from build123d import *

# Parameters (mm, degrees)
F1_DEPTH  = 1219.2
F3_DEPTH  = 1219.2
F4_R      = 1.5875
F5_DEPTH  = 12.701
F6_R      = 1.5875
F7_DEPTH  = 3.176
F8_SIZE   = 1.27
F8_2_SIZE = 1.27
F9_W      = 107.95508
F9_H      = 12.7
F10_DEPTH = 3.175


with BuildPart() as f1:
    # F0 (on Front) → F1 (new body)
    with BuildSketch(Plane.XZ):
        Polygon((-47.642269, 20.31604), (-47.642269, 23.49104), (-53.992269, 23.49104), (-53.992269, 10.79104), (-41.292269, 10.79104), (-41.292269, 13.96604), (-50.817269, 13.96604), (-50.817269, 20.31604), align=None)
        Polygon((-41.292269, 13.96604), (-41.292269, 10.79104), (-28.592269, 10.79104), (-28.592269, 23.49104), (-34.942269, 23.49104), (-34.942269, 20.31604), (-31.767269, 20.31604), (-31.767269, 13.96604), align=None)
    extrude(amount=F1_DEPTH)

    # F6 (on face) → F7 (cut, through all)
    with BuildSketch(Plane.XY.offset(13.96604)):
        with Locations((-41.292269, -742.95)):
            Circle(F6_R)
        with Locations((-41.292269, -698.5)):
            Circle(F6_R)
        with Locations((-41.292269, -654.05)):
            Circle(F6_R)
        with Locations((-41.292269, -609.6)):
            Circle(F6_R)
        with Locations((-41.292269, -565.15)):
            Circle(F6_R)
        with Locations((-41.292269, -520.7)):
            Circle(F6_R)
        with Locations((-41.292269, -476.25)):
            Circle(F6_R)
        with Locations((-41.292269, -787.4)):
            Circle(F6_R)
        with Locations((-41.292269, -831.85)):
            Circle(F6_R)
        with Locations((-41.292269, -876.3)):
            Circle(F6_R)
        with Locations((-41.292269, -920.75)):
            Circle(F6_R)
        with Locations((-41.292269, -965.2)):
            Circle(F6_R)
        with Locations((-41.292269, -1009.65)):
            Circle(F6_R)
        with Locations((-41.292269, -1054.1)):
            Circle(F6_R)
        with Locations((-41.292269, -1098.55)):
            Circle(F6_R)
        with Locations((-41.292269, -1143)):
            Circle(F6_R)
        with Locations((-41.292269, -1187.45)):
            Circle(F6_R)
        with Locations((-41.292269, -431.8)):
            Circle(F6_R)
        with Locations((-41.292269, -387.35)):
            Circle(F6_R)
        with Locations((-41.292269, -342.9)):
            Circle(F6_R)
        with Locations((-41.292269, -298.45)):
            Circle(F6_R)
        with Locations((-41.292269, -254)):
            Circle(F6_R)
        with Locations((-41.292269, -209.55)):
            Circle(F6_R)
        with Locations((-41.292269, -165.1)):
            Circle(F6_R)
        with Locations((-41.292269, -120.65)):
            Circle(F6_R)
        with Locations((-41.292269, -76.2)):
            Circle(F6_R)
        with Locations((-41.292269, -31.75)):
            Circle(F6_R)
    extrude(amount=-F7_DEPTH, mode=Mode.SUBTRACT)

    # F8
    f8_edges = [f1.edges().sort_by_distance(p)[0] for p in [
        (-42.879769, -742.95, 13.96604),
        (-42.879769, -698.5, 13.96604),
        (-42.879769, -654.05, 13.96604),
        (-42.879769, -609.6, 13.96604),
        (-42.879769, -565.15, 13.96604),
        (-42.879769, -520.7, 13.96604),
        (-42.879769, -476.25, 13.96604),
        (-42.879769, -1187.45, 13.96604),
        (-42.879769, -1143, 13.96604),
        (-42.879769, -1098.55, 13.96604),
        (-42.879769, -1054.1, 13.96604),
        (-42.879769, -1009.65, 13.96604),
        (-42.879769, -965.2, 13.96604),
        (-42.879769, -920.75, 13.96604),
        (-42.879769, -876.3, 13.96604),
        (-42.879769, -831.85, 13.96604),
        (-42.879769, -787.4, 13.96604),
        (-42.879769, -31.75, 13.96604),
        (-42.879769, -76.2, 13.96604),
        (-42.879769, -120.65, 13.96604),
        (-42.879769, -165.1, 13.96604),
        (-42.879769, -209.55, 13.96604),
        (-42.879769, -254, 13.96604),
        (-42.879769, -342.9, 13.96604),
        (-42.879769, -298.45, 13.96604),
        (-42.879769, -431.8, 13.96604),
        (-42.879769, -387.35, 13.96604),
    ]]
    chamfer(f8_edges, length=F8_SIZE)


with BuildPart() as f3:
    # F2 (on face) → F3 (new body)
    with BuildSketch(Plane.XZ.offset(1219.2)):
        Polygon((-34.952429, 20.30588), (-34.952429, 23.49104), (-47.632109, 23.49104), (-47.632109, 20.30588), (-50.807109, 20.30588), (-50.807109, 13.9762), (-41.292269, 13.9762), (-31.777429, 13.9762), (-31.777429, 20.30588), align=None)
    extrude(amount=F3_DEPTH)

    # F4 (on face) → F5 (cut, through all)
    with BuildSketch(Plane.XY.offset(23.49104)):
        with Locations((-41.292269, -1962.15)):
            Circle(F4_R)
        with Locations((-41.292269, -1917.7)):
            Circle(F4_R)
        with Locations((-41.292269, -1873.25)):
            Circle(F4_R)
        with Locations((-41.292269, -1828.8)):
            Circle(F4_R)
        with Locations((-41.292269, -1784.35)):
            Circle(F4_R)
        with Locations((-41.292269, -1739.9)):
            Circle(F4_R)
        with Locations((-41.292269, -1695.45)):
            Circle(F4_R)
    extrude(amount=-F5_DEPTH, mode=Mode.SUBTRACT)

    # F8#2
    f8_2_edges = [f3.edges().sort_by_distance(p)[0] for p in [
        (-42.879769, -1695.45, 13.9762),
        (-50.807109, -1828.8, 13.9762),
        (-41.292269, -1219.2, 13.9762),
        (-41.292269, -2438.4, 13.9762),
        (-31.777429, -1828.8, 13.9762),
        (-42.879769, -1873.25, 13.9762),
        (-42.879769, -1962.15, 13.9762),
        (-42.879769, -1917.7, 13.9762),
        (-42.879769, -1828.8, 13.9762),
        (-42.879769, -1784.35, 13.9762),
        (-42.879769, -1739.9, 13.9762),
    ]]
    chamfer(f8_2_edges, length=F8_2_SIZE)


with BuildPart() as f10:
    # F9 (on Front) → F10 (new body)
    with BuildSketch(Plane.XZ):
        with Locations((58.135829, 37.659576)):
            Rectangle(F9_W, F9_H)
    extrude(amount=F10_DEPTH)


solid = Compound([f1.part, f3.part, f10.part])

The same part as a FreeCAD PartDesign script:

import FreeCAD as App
import Part
import Sketcher

V = App.Vector
Q = App.Units.Quantity


def edges_at(feature, points):
    """Names of the edges that pass closest to the given points."""
    edges = feature.Shape.Edges
    near = lambda p: min(range(len(edges)), key=lambda i: edges[i].distToShape(Part.Vertex(*p))[0])
    return sorted({f"Edge{near(p) + 1}" for p in points})

doc = App.newDocument("Part")
body = doc.addObject("PartDesign::Body", "Body")

# Sketch on XZ plane
sketch1 = body.newObject("Sketcher::SketchObject", "Sketch")
sketch1.AttachmentSupport = (doc.getObject("XZ_Plane"), [""])
sketch1.MapMode = "FlatFace"
sketch1.addGeometry([
    Part.LineSegment(V(-47.6, 20.3, 0), V(-47.6, 23.5, 0)),  # 0
    Part.LineSegment(V(-47.6, 23.5, 0), V(-54, 23.5, 0)),  # 1
    Part.LineSegment(V(-54, 23.5, 0), V(-54, 10.8, 0)),  # 2
    Part.LineSegment(V(-54, 10.8, 0), V(-28.6, 10.8, 0)),  # 3
    Part.LineSegment(V(-28.6, 10.8, 0), V(-28.6, 23.5, 0)),  # 4
    Part.LineSegment(V(-28.6, 23.5, 0), V(-34.9, 23.5, 0)),  # 5
    Part.LineSegment(V(-34.9, 23.5, 0), V(-34.9, 20.3, 0)),  # 6
    Part.LineSegment(V(-34.9, 20.3, 0), V(-31.8, 20.3, 0)),  # 7
    Part.LineSegment(V(-31.8, 20.3, 0), V(-31.8, 14, 0)),  # 8
    Part.LineSegment(V(-31.8, 14, 0), V(-50.8, 14, 0)),  # 9
    Part.LineSegment(V(-50.8, 14, 0), V(-50.8, 20.3, 0)),  # 10
    Part.LineSegment(V(-50.8, 20.3, 0), V(-47.6, 20.3, 0)),  # 11
], False)
sketch1.addConstraint([
    Sketcher.Constraint("Coincident", 0, 2, 1, 1),
    Sketcher.Constraint("Coincident", 1, 2, 2, 1),
    Sketcher.Constraint("Coincident", 2, 2, 3, 1),
    Sketcher.Constraint("Coincident", 3, 2, 4, 1),
    Sketcher.Constraint("Coincident", 4, 2, 5, 1),
    Sketcher.Constraint("Coincident", 5, 2, 6, 1),
    Sketcher.Constraint("Coincident", 6, 2, 7, 1),
    Sketcher.Constraint("Coincident", 7, 2, 8, 1),
    Sketcher.Constraint("Coincident", 8, 2, 9, 1),
    Sketcher.Constraint("Coincident", 9, 2, 10, 1),
    Sketcher.Constraint("Coincident", 10, 2, 11, 1),
    Sketcher.Constraint("Coincident", 11, 2, 0, 1),
    Sketcher.Constraint("Vertical", 0),
    Sketcher.Constraint("Horizontal", 1),
    Sketcher.Constraint("Vertical", 2),
    Sketcher.Constraint("Horizontal", 3),
    Sketcher.Constraint("Vertical", 4),
    Sketcher.Constraint("Horizontal", 5),
    Sketcher.Constraint("Vertical", 6),
    Sketcher.Constraint("Horizontal", 7),
    Sketcher.Constraint("Vertical", 8),
    Sketcher.Constraint("Horizontal", 9),
    Sketcher.Constraint("Vertical", 10),
    Sketcher.Constraint("Horizontal", 11),
    Sketcher.Constraint("Horizontal", 1, 2, 4, 2),
    Sketcher.Constraint("Horizontal", 7, 2, 10, 2),
    Sketcher.Constraint("Equal", 1, 5),
    Sketcher.Constraint("Equal", 7, 11),
    Sketcher.Constraint("Equal", 11, 0),
    Sketcher.Constraint("Equal", 5, 8),
    Sketcher.Constraint("DistanceX", 3, 1, 3, 2, Q("1 in")),
    Sketcher.Constraint("DistanceY", 2, 2, 2, 1, Q("0.5 in")),
    Sketcher.Constraint("DistanceX", 1, 2, 1, 1, Q("0.25 in")),
    Sketcher.Constraint("DistanceX", 9, 2, 9, 1, Q("0.75 in")),
    Sketcher.Constraint("DistanceX", 0, 2, -1, 1, 47.642269),
    Sketcher.Constraint("DistanceY", -1, 1, 0, 2, 23.49104),
])
pad1 = body.newObject("PartDesign::Pad", "Pad")
pad1.Profile = sketch1
pad1.Length = Q("48 in")

# Sketch on XY plane
sketch2 = body.newObject("Sketcher::SketchObject", "Sketch001")
sketch2.AttachmentSupport = (doc.getObject("XY_Plane"), [""])
sketch2.MapMode = "FlatFace"
sketch2.AttachmentOffset = App.Placement(V(0, 0, 13.96604), App.Rotation())
sketch2.addGeometry([
    Part.Circle(V(-41.3, -743, 0), V(0, 0, 1), 1.6),  # 0
    Part.Circle(V(-41.3, -698.5, 0), V(0, 0, 1), 1.6),  # 1
    Part.Circle(V(-41.3, -654, 0), V(0, 0, 1), 1.6),  # 2
    Part.Circle(V(-41.3, -609.6, 0), V(0, 0, 1), 1.6),  # 3
    Part.Circle(V(-41.3, -565.1, 0), V(0, 0, 1), 1.6),  # 4
    Part.Circle(V(-41.3, -520.7, 0), V(0, 0, 1), 1.6),  # 5
    Part.Circle(V(-41.3, -476.2, 0), V(0, 0, 1), 1.6),  # 6
    Part.Circle(V(-41.3, -787.4, 0), V(0, 0, 1), 1.6),  # 7
    Part.Circle(V(-41.3, -831.9, 0), V(0, 0, 1), 1.6),  # 8
    Part.Circle(V(-41.3, -876.3, 0), V(0, 0, 1), 1.6),  # 9
    Part.Circle(V(-41.3, -920.8, 0), V(0, 0, 1), 1.6),  # 10
    Part.Circle(V(-41.3, -965.2, 0), V(0, 0, 1), 1.6),  # 11
    Part.Circle(V(-41.3, -1009.6, 0), V(0, 0, 1), 1.6),  # 12
    Part.Circle(V(-41.3, -1054.1, 0), V(0, 0, 1), 1.6),  # 13
    Part.Circle(V(-41.3, -1098.5, 0), V(0, 0, 1), 1.6),  # 14
    Part.Circle(V(-41.3, -1143, 0), V(0, 0, 1), 1.6),  # 15
    Part.Circle(V(-41.3, -1187.5, 0), V(0, 0, 1), 1.6),  # 16
    Part.Circle(V(-41.3, -431.8, 0), V(0, 0, 1), 1.6),  # 17
    Part.Circle(V(-41.3, -387.4, 0), V(0, 0, 1), 1.6),  # 18
    Part.Circle(V(-41.3, -342.9, 0), V(0, 0, 1), 1.6),  # 19
    Part.Circle(V(-41.3, -298.4, 0), V(0, 0, 1), 1.6),  # 20
    Part.Circle(V(-41.3, -254, 0), V(0, 0, 1), 1.6),  # 21
    Part.Circle(V(-41.3, -209.6, 0), V(0, 0, 1), 1.6),  # 22
    Part.Circle(V(-41.3, -165.1, 0), V(0, 0, 1), 1.6),  # 23
    Part.Circle(V(-41.3, -120.7, 0), V(0, 0, 1), 1.6),  # 24
    Part.Circle(V(-41.3, -76.2, 0), V(0, 0, 1), 1.6),  # 25
    Part.Circle(V(-41.3, -31.8, 0), V(0, 0, 1), 1.6),  # 26
], False)
sketch2.addConstraint([
    Sketcher.Constraint("Equal", 0, 1),
    Sketcher.Constraint("Equal", 1, 2),
    Sketcher.Constraint("Equal", 2, 3),
    Sketcher.Constraint("Equal", 3, 4),
    Sketcher.Constraint("Equal", 4, 5),
    Sketcher.Constraint("Equal", 5, 6),
    Sketcher.Constraint("Equal", 6, 7),
    Sketcher.Constraint("Equal", 7, 8),
    Sketcher.Constraint("Equal", 8, 9),
    Sketcher.Constraint("Equal", 9, 10),
    Sketcher.Constraint("Equal", 10, 11),
    Sketcher.Constraint("Equal", 11, 12),
    Sketcher.Constraint("Equal", 12, 13),
    Sketcher.Constraint("Equal", 13, 14),
    Sketcher.Constraint("Equal", 14, 15),
    Sketcher.Constraint("Equal", 15, 16),
    Sketcher.Constraint("Equal", 16, 17),
    Sketcher.Constraint("Equal", 17, 18),
    Sketcher.Constraint("Equal", 18, 19),
    Sketcher.Constraint("Equal", 19, 20),
    Sketcher.Constraint("Equal", 20, 21),
    Sketcher.Constraint("Equal", 21, 22),
    Sketcher.Constraint("Equal", 22, 23),
    Sketcher.Constraint("Equal", 23, 24),
    Sketcher.Constraint("Equal", 24, 25),
    Sketcher.Constraint("Equal", 25, 26),
    Sketcher.Constraint("Vertical", 0, 3, 1, 3),
    Sketcher.Constraint("Vertical", 1, 3, 2, 3),
    Sketcher.Constraint("Vertical", 2, 3, 3, 3),
    Sketcher.Constraint("Vertical", 3, 3, 4, 3),
    Sketcher.Constraint("Vertical", 4, 3, 5, 3),
    Sketcher.Constraint("Vertical", 5, 3, 6, 3),
    Sketcher.Constraint("Vertical", 6, 3, 7, 3),
    Sketcher.Constraint("Vertical", 7, 3, 8, 3),
    Sketcher.Constraint("Vertical", 8, 3, 9, 3),
    Sketcher.Constraint("Vertical", 9, 3, 10, 3),
    Sketcher.Constraint("Vertical", 10, 3, 11, 3),
    Sketcher.Constraint("Vertical", 11, 3, 12, 3),
    Sketcher.Constraint("Vertical", 12, 3, 13, 3),
    Sketcher.Constraint("Vertical", 13, 3, 14, 3),
    Sketcher.Constraint("Vertical", 14, 3, 15, 3),
    Sketcher.Constraint("Vertical", 15, 3, 16, 3),
    Sketcher.Constraint("Vertical", 16, 3, 17, 3),
    Sketcher.Constraint("Vertical", 17, 3, 18, 3),
    Sketcher.Constraint("Vertical", 18, 3, 19, 3),
    Sketcher.Constraint("Vertical", 19, 3, 20, 3),
    Sketcher.Constraint("Vertical", 20, 3, 21, 3),
    Sketcher.Constraint("Vertical", 21, 3, 22, 3),
    Sketcher.Constraint("Vertical", 22, 3, 23, 3),
    Sketcher.Constraint("Vertical", 23, 3, 24, 3),
    Sketcher.Constraint("Vertical", 24, 3, 25, 3),
    Sketcher.Constraint("Vertical", 25, 3, 26, 3),
    Sketcher.Constraint("Diameter", 0, Q("0.125 in")),
    Sketcher.Constraint("DistanceY", 3, 3, -1, 1, Q("24 in")),
    Sketcher.Constraint("DistanceY", 7, 3, -1, 1, Q("31 in")),
    Sketcher.Constraint("DistanceY", 11, 3, -1, 1, Q("38 in")),
    Sketcher.Constraint("DistanceY", 15, 3, -1, 1, Q("45 in")),
    Sketcher.Constraint("DistanceY", 17, 3, -1, 1, Q("17 in")),
    Sketcher.Constraint("DistanceY", 21, 3, -1, 1, Q("10 in")),
    Sketcher.Constraint("DistanceY", 25, 3, -1, 1, Q("3 in")),
    Sketcher.Constraint("DistanceY", 0, 3, 4, 3, Q("7 in")),
    Sketcher.Constraint("DistanceY", 1, 3, 5, 3, Q("7 in")),
    Sketcher.Constraint("DistanceY", 2, 3, 6, 3, Q("7 in")),
    Sketcher.Constraint("DistanceY", 8, 3, 2, 3, Q("7 in")),
    Sketcher.Constraint("DistanceY", 9, 3, 1, 3, Q("7 in")),
    Sketcher.Constraint("DistanceY", 10, 3, 0, 3, Q("7 in")),
    Sketcher.Constraint("DistanceY", 12, 3, 8, 3, Q("7 in")),
    Sketcher.Constraint("DistanceY", 13, 3, 9, 3, Q("7 in")),
    Sketcher.Constraint("DistanceY", 14, 3, 10, 3, Q("7 in")),
    Sketcher.Constraint("DistanceY", 16, 3, 12, 3, Q("7 in")),
    Sketcher.Constraint("DistanceY", 4, 3, 18, 3, Q("7 in")),
    Sketcher.Constraint("DistanceY", 5, 3, 19, 3, Q("7 in")),
    Sketcher.Constraint("DistanceY", 6, 3, 20, 3, Q("7 in")),
    Sketcher.Constraint("DistanceY", 18, 3, 22, 3, Q("7 in")),
    Sketcher.Constraint("DistanceY", 19, 3, 23, 3, Q("7 in")),
    Sketcher.Constraint("DistanceY", 20, 3, 24, 3, Q("7 in")),
    Sketcher.Constraint("DistanceY", 22, 3, 26, 3, Q("7 in")),
    Sketcher.Constraint("DistanceY", 1, 3, -1, 1, Q("27.5 in")),
    Sketcher.Constraint("DistanceY", 0, 3, 2, 3, Q("3.5 in")),
    Sketcher.Constraint("DistanceY", 0, 3, -1, 1, Q("29.25 in")),
    Sketcher.Constraint("DistanceX", 0, 3, -1, 1, 41.292269),
])
pocket1 = body.newObject("PartDesign::Pocket", "Pocket")
pocket1.Profile = sketch2
pocket1.Type = "ThroughAll"
doc.recompute()

chamfer = body.newObject("PartDesign::Chamfer", "Chamfer")
chamfer.Base = (pocket1, edges_at(pocket1, [
    (-42.88, -742.95, 13.966),
    (-42.88, -698.5, 13.966),
    (-42.88, -654.05, 13.966),
    (-42.88, -609.6, 13.966),
    (-42.88, -565.15, 13.966),
    (-42.88, -520.7, 13.966),
    (-42.88, -476.25, 13.966),
    (-42.88, -1187.45, 13.966),
    (-42.88, -1143, 13.966),
    (-42.88, -1098.55, 13.966),
    (-42.88, -1054.1, 13.966),
    (-42.88, -1009.65, 13.966),
    (-42.88, -965.2, 13.966),
    (-42.88, -920.75, 13.966),
    (-42.88, -876.3, 13.966),
    (-42.88, -831.85, 13.966),
    (-42.88, -787.4, 13.966),
    (-42.88, -31.75, 13.966),
    (-42.88, -76.2, 13.966),
    (-42.88, -120.65, 13.966),
    (-42.88, -165.1, 13.966),
    (-42.88, -209.55, 13.966),
    (-42.88, -254, 13.966),
    (-42.88, -342.9, 13.966),
    (-42.88, -298.45, 13.966),
    (-42.88, -431.8, 13.966),
    (-42.88, -387.35, 13.966),
]))
chamfer.Size = Q("0.05 in")
body2 = doc.addObject("PartDesign::Body", "Body001")

# Sketch on XZ plane
sketch3 = body2.newObject("Sketcher::SketchObject", "Sketch002")
sketch3.AttachmentSupport = (doc.getObject("XZ_Plane001"), [""])
sketch3.MapMode = "FlatFace"
sketch3.AttachmentOffset = App.Placement(V(0, 0, 48 * 25.4), App.Rotation())
sketch3.addGeometry([
    Part.LineSegment(V(-35, 20.3, 0), V(-35, 23.5, 0)),  # 0
    Part.LineSegment(V(-35, 23.5, 0), V(-47.6, 23.5, 0)),  # 1
    Part.LineSegment(V(-47.6, 23.5, 0), V(-47.6, 20.3, 0)),  # 2
    Part.LineSegment(V(-47.6, 20.3, 0), V(-50.8, 20.3, 0)),  # 3
    Part.LineSegment(V(-50.8, 20.3, 0), V(-50.8, 14, 0)),  # 4
    Part.LineSegment(V(-50.8, 14, 0), V(-31.8, 14, 0)),  # 5
    Part.LineSegment(V(-31.8, 14, 0), V(-31.8, 20.3, 0)),  # 6
    Part.LineSegment(V(-31.8, 20.3, 0), V(-35, 20.3, 0)),  # 7
], False)
sketch3.addConstraint([
    Sketcher.Constraint("Coincident", 0, 2, 1, 1),
    Sketcher.Constraint("Coincident", 1, 2, 2, 1),
    Sketcher.Constraint("Coincident", 2, 2, 3, 1),
    Sketcher.Constraint("Coincident", 3, 2, 4, 1),
    Sketcher.Constraint("Coincident", 4, 2, 5, 1),
    Sketcher.Constraint("Coincident", 5, 2, 6, 1),
    Sketcher.Constraint("Coincident", 6, 2, 7, 1),
    Sketcher.Constraint("Coincident", 7, 2, 0, 1),
    Sketcher.Constraint("Vertical", 0),
    Sketcher.Constraint("Horizontal", 1),
    Sketcher.Constraint("Vertical", 2),
    Sketcher.Constraint("Horizontal", 3),
    Sketcher.Constraint("Vertical", 4),
    Sketcher.Constraint("Horizontal", 5),
    Sketcher.Constraint("Vertical", 6),
    Sketcher.Constraint("Horizontal", 7),
    Sketcher.Constraint("Horizontal", 3, 2, 6, 2),
    Sketcher.Constraint("Equal", 3, 7),
    Sketcher.Constraint("DistanceX", 3, 2, 3, 1, Q("0.125 in")),
    Sketcher.Constraint("DistanceX", 1, 2, 1, 1, Q("0.4992 in")),
    Sketcher.Constraint("DistanceY", 0, 1, 0, 2, Q("0.1254 in")),
    Sketcher.Constraint("DistanceY", 4, 2, 4, 1, Q("0.2492 in")),
    Sketcher.Constraint("DistanceY", -1, 1, 4, 2, 13.9762),
    Sketcher.Constraint("DistanceX", 0, 2, -1, 1, 34.952429),
])
pad2 = body2.newObject("PartDesign::Pad", "Pad001")
pad2.Profile = sketch3
pad2.Length = Q("48 in")

# Sketch on XY plane
sketch4 = body2.newObject("Sketcher::SketchObject", "Sketch003")
sketch4.AttachmentSupport = (doc.getObject("XY_Plane001"), [""])
sketch4.MapMode = "FlatFace"
sketch4.AttachmentOffset = App.Placement(V(0, 0, 23.49104), App.Rotation())
sketch4.addGeometry([
    Part.Circle(V(-41.3, -1962.2, 0), V(0, 0, 1), 1.6),  # 0
    Part.Circle(V(-41.3, -1917.7, 0), V(0, 0, 1), 1.6),  # 1
    Part.Circle(V(-41.3, -1873.2, 0), V(0, 0, 1), 1.6),  # 2
    Part.Circle(V(-41.3, -1828.8, 0), V(0, 0, 1), 1.6),  # 3
    Part.Circle(V(-41.3, -1784.3, 0), V(0, 0, 1), 1.6),  # 4
    Part.Circle(V(-41.3, -1739.9, 0), V(0, 0, 1), 1.6),  # 5
    Part.Circle(V(-41.3, -1695.5, 0), V(0, 0, 1), 1.6),  # 6
], False)
sketch4.addConstraint([
    Sketcher.Constraint("Equal", 0, 1),
    Sketcher.Constraint("Equal", 1, 2),
    Sketcher.Constraint("Equal", 2, 3),
    Sketcher.Constraint("Equal", 3, 4),
    Sketcher.Constraint("Equal", 4, 5),
    Sketcher.Constraint("Equal", 5, 6),
    Sketcher.Constraint("Vertical", 0, 3, 1, 3),
    Sketcher.Constraint("Vertical", 1, 3, 2, 3),
    Sketcher.Constraint("Vertical", 2, 3, 3, 3),
    Sketcher.Constraint("Vertical", 3, 3, 4, 3),
    Sketcher.Constraint("Vertical", 4, 3, 5, 3),
    Sketcher.Constraint("Vertical", 5, 3, 6, 3),
    Sketcher.Constraint("Diameter", 0, Q("0.125 in")),
    Sketcher.Constraint("DistanceY", 3, 3, -1, 1, Q("72 in")),
    Sketcher.Constraint("DistanceY", 0, 3, 4, 3, Q("7 in")),
    Sketcher.Constraint("DistanceY", 1, 3, 5, 3, Q("7 in")),
    Sketcher.Constraint("DistanceY", 2, 3, 6, 3, Q("7 in")),
    Sketcher.Constraint("DistanceY", 1, 3, -1, 1, Q("75.5 in")),
    Sketcher.Constraint("DistanceY", 0, 3, 2, 3, Q("3.5 in")),
    Sketcher.Constraint("DistanceY", 0, 3, -1, 1, Q("77.25 in")),
    Sketcher.Constraint("DistanceX", 0, 3, -1, 1, 41.292269),
])
pocket2 = body2.newObject("PartDesign::Pocket", "Pocket001")
pocket2.Profile = sketch4
pocket2.Type = "ThroughAll"
doc.recompute()

chamfer2 = body2.newObject("PartDesign::Chamfer", "Chamfer001")
chamfer2.Base = (pocket2, edges_at(pocket2, [
    (-42.88, -1695.45, 13.976),
    (-50.807, -1828.8, 13.976),
    (-41.292, -1219.2, 13.976),
    (-41.292, -2438.4, 13.976),
    (-31.777, -1828.8, 13.976),
    (-42.88, -1873.25, 13.976),
    (-42.88, -1962.15, 13.976),
    (-42.88, -1917.7, 13.976),
    (-42.88, -1828.8, 13.976),
    (-42.88, -1784.35, 13.976),
    (-42.88, -1739.9, 13.976),
]))
chamfer2.Size = Q("0.05 in")
body3 = doc.addObject("PartDesign::Body", "Body002")

# Sketch on XZ plane
sketch5 = body3.newObject("Sketcher::SketchObject", "Sketch004")
sketch5.AttachmentSupport = (doc.getObject("XZ_Plane002"), [""])
sketch5.MapMode = "FlatFace"
sketch5.addGeometry([
    Part.LineSegment(V(4, 44, 0), V(4, 31, 0)),
    Part.LineSegment(V(4, 31, 0), V(112, 31, 0)),
    Part.LineSegment(V(112, 31, 0), V(112, 44, 0)),
    Part.LineSegment(V(112, 44, 0), V(4, 44, 0)),
], False)
sketch5.addConstraint([
    Sketcher.Constraint("Coincident", 0, 2, 1, 1),
    Sketcher.Constraint("Coincident", 1, 2, 2, 1),
    Sketcher.Constraint("Coincident", 2, 2, 3, 1),
    Sketcher.Constraint("Coincident", 3, 2, 0, 1),
    Sketcher.Constraint("Vertical", 0),
    Sketcher.Constraint("Horizontal", 1),
    Sketcher.Constraint("Vertical", 2),
    Sketcher.Constraint("Horizontal", 3),
    Sketcher.Constraint("DistanceY", 0, 2, 0, 1, Q("0.5 in")),
    Sketcher.Constraint("DistanceX", 1, 1, 1, 2, Q("4.2502 in")),
    Sketcher.Constraint("DistanceX", -1, 1, 0, 2, 4.158289),
    Sketcher.Constraint("DistanceY", -1, 1, 0, 2, 31.309576),
])
pad3 = body3.newObject("PartDesign::Pad", "Pad002")
pad3.Profile = sketch5
pad3.Length = Q("0.125 in")

doc.recompute()
